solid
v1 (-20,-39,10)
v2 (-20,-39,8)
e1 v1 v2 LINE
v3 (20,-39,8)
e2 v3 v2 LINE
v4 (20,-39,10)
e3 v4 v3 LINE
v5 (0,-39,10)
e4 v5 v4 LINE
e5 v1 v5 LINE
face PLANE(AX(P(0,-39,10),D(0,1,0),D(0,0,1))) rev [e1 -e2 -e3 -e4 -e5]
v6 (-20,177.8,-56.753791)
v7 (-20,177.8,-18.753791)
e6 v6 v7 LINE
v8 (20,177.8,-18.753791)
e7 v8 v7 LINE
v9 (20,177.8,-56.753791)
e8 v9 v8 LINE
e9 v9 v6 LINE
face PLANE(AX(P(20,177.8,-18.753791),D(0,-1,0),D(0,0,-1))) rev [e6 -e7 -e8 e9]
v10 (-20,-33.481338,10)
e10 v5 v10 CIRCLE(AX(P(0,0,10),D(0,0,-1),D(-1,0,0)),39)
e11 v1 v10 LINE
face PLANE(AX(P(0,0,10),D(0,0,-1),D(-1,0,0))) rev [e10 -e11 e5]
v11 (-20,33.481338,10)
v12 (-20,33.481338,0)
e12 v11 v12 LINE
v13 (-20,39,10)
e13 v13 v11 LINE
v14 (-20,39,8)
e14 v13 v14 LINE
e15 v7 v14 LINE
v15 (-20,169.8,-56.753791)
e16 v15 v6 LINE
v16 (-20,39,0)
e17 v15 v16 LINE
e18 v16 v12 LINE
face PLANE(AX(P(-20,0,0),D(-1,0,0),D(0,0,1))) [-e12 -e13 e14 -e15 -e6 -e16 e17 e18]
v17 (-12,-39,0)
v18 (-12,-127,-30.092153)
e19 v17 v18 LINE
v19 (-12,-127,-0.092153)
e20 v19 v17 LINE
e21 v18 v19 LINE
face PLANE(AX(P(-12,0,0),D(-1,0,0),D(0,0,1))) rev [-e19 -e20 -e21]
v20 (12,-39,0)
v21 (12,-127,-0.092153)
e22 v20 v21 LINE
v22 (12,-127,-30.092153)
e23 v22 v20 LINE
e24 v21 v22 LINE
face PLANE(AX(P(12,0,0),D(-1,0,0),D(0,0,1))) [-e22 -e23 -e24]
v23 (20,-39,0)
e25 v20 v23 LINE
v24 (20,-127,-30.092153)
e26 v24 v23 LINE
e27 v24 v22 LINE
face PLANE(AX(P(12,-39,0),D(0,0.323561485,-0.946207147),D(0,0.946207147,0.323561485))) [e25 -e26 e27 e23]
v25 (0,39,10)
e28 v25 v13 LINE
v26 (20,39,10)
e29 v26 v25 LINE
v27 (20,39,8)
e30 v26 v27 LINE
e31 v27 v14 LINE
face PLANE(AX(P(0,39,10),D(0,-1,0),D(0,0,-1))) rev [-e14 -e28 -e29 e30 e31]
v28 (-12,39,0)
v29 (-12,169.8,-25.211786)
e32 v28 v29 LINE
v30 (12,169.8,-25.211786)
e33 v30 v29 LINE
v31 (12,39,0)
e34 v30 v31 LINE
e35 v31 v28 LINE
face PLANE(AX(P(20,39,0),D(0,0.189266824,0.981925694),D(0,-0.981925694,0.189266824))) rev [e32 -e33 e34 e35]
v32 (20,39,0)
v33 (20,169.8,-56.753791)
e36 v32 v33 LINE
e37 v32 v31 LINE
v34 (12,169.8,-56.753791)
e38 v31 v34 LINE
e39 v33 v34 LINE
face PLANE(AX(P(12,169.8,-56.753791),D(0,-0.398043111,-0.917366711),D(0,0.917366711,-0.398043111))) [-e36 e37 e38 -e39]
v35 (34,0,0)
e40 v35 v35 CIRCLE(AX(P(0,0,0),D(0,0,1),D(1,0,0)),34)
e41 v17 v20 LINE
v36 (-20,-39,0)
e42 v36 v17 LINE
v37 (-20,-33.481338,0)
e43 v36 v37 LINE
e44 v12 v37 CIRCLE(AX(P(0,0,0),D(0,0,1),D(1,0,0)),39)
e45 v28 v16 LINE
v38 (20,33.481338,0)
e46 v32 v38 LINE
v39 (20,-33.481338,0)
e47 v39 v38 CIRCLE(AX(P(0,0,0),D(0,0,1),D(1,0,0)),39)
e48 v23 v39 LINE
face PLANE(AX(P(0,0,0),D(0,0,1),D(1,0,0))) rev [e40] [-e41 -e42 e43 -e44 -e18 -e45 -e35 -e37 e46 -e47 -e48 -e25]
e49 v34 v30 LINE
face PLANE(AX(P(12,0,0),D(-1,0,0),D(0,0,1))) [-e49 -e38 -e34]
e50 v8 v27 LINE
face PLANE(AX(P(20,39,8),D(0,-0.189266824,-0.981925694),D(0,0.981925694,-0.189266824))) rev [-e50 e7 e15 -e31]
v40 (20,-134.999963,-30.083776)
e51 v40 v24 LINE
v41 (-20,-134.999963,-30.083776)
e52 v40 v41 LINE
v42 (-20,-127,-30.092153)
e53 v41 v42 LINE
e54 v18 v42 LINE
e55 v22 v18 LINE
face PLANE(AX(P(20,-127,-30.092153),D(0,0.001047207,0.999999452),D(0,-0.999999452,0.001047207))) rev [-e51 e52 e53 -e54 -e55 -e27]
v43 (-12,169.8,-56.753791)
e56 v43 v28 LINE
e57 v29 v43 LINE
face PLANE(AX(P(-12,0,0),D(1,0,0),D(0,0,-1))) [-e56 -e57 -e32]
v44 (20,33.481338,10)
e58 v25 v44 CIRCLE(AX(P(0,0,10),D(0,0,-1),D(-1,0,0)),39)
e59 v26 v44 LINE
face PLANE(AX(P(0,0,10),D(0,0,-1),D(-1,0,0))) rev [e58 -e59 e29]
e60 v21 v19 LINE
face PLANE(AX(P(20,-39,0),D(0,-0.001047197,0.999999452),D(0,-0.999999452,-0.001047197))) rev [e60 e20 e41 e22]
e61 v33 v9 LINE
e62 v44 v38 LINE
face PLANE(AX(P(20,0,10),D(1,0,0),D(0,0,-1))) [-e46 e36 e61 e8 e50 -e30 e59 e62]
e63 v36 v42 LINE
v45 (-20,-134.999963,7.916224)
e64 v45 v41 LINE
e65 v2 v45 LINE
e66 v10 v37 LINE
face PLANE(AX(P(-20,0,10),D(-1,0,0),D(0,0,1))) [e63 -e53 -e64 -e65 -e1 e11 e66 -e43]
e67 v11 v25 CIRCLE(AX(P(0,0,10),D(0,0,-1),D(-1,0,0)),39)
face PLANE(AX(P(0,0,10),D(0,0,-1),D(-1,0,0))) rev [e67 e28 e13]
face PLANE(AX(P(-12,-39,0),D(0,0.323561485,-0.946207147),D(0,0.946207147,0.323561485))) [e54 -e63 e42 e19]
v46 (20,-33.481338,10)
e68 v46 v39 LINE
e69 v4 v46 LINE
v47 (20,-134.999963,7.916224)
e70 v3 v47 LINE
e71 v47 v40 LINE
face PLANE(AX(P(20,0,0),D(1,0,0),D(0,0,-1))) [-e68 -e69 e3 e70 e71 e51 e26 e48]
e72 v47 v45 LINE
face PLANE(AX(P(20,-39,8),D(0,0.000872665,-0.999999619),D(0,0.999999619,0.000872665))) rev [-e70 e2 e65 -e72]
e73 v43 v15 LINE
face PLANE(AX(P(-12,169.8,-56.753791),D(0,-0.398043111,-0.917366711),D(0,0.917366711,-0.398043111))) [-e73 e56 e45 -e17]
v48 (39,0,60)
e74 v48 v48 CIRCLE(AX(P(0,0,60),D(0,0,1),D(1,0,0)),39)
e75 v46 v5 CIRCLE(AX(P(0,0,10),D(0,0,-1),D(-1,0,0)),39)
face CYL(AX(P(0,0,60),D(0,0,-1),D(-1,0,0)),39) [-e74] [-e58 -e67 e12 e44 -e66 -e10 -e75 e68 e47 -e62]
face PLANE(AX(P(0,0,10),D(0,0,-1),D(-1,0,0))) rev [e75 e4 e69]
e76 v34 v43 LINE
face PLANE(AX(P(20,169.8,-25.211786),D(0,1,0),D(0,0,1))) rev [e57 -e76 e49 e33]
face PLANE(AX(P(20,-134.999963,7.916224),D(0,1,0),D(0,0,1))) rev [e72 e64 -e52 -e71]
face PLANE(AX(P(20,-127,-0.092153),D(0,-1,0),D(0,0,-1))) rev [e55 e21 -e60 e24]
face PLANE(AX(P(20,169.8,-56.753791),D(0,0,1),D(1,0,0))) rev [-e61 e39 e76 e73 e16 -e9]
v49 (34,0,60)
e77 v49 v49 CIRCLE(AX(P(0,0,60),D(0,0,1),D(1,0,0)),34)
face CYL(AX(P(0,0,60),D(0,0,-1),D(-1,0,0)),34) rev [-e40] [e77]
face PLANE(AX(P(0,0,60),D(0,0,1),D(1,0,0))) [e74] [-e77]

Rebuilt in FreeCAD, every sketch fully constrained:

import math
import FreeCAD as App
import Part
import Sketcher
Q = App.Units.Quantity

doc = App.newDocument("Part")
body = doc.addObject("PartDesign::Body", "Body")

# Sketch on XY plane
sketch1 = body.newObject("Sketcher::SketchObject", "Sketch")
sketch1.AttachmentSupport = (doc.getObject("XY_Plane"), [""])
sketch1.MapMode = "FlatFace"
sketch1.addGeometry([
    Part.Circle(App.Vector(0, 0, 0), App.Vector(0, 0, 1), 39),
    Part.Circle(App.Vector(0, 0, 0), App.Vector(0, 0, 1), 34),
], False)
sketch1.addConstraint([
    Sketcher.Constraint("Coincident", 0, 3, -1, 1),
    Sketcher.Constraint("Coincident", 1, 3, -1, 1),
    Sketcher.Constraint("Diameter", 0, 78.0),
    Sketcher.Constraint("Diameter", 1, 68.0),
])
pad1 = body.newObject("PartDesign::Pad", "Pad")
pad1.Profile = sketch1
pad1.Length = 60
body2 = doc.addObject("PartDesign::Body", "Body001")

# Sketch on YZ plane
sketch2 = body2.newObject("Sketcher::SketchObject", "Sketch001")
sketch2.AttachmentSupport = (doc.getObject("YZ_Plane001"), [""])
sketch2.MapMode = "FlatFace"
sketch2.addGeometry([
    Part.LineSegment(App.Vector(178, -19, 0), App.Vector(39, 8, 0)),  # 0
    Part.LineSegment(App.Vector(39, 8, 0), App.Vector(39, 0, 0)),  # 1
    Part.LineSegment(App.Vector(39, 0, 0), App.Vector(170, -25, 0)),  # 2
    Part.LineSegment(App.Vector(170, -25, 0), App.Vector(170, -57, 0)),  # 3
    Part.LineSegment(App.Vector(170, -57, 0), App.Vector(178, -57, 0)),  # 4
    Part.LineSegment(App.Vector(178, -57, 0), App.Vector(178, -19, 0)),  # 5
], False)
sketch2.addConstraint([
    Sketcher.Constraint("Coincident", 0, 2, 1, 1),
    Sketcher.Constraint("Coincident", 1, 2, 2, 1),
    Sketcher.Constraint("Coincident", 2, 2, 3, 1),
    Sketcher.Constraint("Coincident", 3, 2, 4, 1),
    Sketcher.Constraint("Coincident", 4, 2, 5, 1),
    Sketcher.Constraint("Coincident", 5, 2, 0, 1),
    Sketcher.Constraint("Vertical", 1),
    Sketcher.Constraint("Vertical", 3),
    Sketcher.Constraint("Horizontal", 4),
    Sketcher.Constraint("Vertical", 5),
    Sketcher.Constraint("PointOnObject", 1, 2, -1),
    Sketcher.Constraint("Parallel", 0, 2),
    Sketcher.Constraint("Equal", 4, 1),
    Sketcher.Constraint("DistanceX", 4, 1, 4, 2, 8.0),
    Sketcher.Constraint("DistanceY", 5, 1, 5, 2, 38.0),
    Sketcher.Constraint("DistanceX", -1, 1, 0, 2, 39.0),
    Sketcher.Constraint("DistanceX", -1, 1, 2, 2, 169.8),
    Sketcher.Constraint("Angle", 0, Q("169.09 deg")),
])
pad2 = body2.newObject("PartDesign::Pad", "Pad001")
pad2.Profile = sketch2
pad2.Length = 40
pad2.Midplane = True
body.AllowCompound = True
doc.recompute()

boolean = body.newObject("PartDesign::Boolean", "Boolean")
boolean.Type = "Fuse"
boolean.addObjects([body2])

# Sketch on XY plane
sketch3 = body.newObject("Sketcher::SketchObject", "Sketch002")
sketch3.AttachmentSupport = (doc.getObject("XY_Plane"), [""])
sketch3.MapMode = "FlatFace"
sketch3.addGeometry([
    Part.LineSegment(App.Vector(0, 39, 0), App.Vector(20, 39, 0)),  # 0
    Part.LineSegment(App.Vector(20, 39, 0), App.Vector(20, 33, 0)),  # 1
    Part.ArcOfCircle(Part.Circle(App.Vector(0, 0, 0), App.Vector(0, 0, 1), 39), math.radians(59), math.radians(90)),  # 2
    Part.LineSegment(App.Vector(-20, 39, 0), App.Vector(0, 39, 0)),  # 3
    Part.ArcOfCircle(Part.Circle(App.Vector(0, 0, 0), App.Vector(0, 0, 1), 39), math.radians(90), math.radians(121)),  # 4
    Part.LineSegment(App.Vector(-20, 33, 0), App.Vector(-20, 39, 0)),  # 5
], False)
sketch3.addConstraint([
    Sketcher.Constraint("Coincident", 0, 2, 1, 1),
    Sketcher.Constraint("Coincident", 1, 2, 2, 1),
    Sketcher.Constraint("Tangent", 2, 2, 0, 1),
    Sketcher.Constraint("Tangent", 3, 2, 4, 1),
    Sketcher.Constraint("Coincident", 4, 2, 5, 1),
    Sketcher.Constraint("Coincident", 5, 2, 3, 1),
    Sketcher.Constraint("Horizontal", 0),
    Sketcher.Constraint("Vertical", 1),
    Sketcher.Constraint("Horizontal", 3),
    Sketcher.Constraint("Vertical", 5),
    Sketcher.Constraint("Coincident", 2, 3, -1, 1),
    Sketcher.Constraint("Coincident", 4, 3, -1, 1),
    Sketcher.Constraint("Equal", 2, 4),
    Sketcher.Constraint("Horizontal", 1, 2, 4, 2),
    Sketcher.Constraint("Radius", 2, 39.0),
    Sketcher.Constraint("DistanceX", 0, 1, 0, 2, 20.0),
])
pad3 = body.newObject("PartDesign::Pad", "Pad002")
pad3.Profile = sketch3
pad3.Length = 10
body3 = doc.addObject("PartDesign::Body", "Body002")

# Sketch on YZ plane
sketch4 = body3.newObject("Sketcher::SketchObject", "Sketch003")
sketch4.AttachmentSupport = (doc.getObject("YZ_Plane002"), [""])
sketch4.MapMode = "FlatFace"
sketch4.addGeometry([
    Part.LineSegment(App.Vector(-39, 8, 0), App.Vector(-135, 8, 0)),  # 0
    Part.LineSegment(App.Vector(-135, 8, 0), App.Vector(-135, -30, 0)),  # 1
    Part.LineSegment(App.Vector(-135, -30, 0), App.Vector(-127, -30, 0)),  # 2
    Part.LineSegment(App.Vector(-127, -30, 0), App.Vector(-127, 0, 0)),  # 3
    Part.LineSegment(App.Vector(-127, 0, 0), App.Vector(-39, 0, 0)),  # 4
    Part.LineSegment(App.Vector(-39, 0, 0), App.Vector(-39, 8, 0)),  # 5
], False)
sketch4.addConstraint([
    Sketcher.Constraint("Coincident", 0, 2, 1, 1),
    Sketcher.Constraint("Coincident", 1, 2, 2, 1),
    Sketcher.Constraint("Coincident", 2, 2, 3, 1),
    Sketcher.Constraint("Coincident", 3, 2, 4, 1),
    Sketcher.Constraint("Coincident", 4, 2, 5, 1),
    Sketcher.Constraint("Coincident", 5, 2, 0, 1),
    Sketcher.Constraint("Vertical", 1),
    Sketcher.Constraint("Vertical", 3),
    Sketcher.Constraint("Vertical", 5),
    Sketcher.Constraint("PointOnObject", 4, 2, -1),
    Sketcher.Constraint("DistanceY", 1, 2, 1, 1, 38.0),
    Sketcher.Constraint("DistanceY", 3, 1, 3, 2, 30.0),
    Sketcher.Constraint("DistanceY", 5, 1, 5, 2, 8.0),
    Sketcher.Constraint("Distance", 0, 96.0),
    Sketcher.Constraint("DistanceX", 2, 2, -1, 1, 127.0),
    Sketcher.Constraint("DistanceX", 4, 2, -1, 1, 39.0),
    Sketcher.Constraint("Angle", 0, Q("-179.95 deg")),
    Sketcher.Constraint("Angle", 2, Q("-0.060001 deg")),
])
pad4 = body3.newObject("PartDesign::Pad", "Pad003")
pad4.Profile = sketch4
pad4.Length = 40
pad4.Midplane = True
body.AllowCompound = True
doc.recompute()

boolean2 = body.newObject("PartDesign::Boolean", "Boolean001")
boolean2.Type = "Fuse"
boolean2.addObjects([body3])

# Sketch on XY plane
sketch5 = body.newObject("Sketcher::SketchObject", "Sketch004")
sketch5.AttachmentSupport = (doc.getObject("XY_Plane"), [""])
sketch5.MapMode = "FlatFace"
sketch5.addGeometry([
    Part.LineSegment(App.Vector(20, -33, 0), App.Vector(20, -39, 0)),  # 0
    Part.LineSegment(App.Vector(20, -39, 0), App.Vector(0, -39, 0)),  # 1
    Part.ArcOfCircle(Part.Circle(App.Vector(0, 0, 0), App.Vector(0, 0, 1), 39), math.radians(-90), math.radians(-59)),  # 2
    Part.ArcOfCircle(Part.Circle(App.Vector(0, 0, 0), App.Vector(0, 0, 1), 39), math.radians(-121), math.radians(-90)),  # 3
    Part.LineSegment(App.Vector(0, -39, 0), App.Vector(-20, -39, 0)),  # 4
    Part.LineSegment(App.Vector(-20, -39, 0), App.Vector(-20, -33, 0)),  # 5
], False)
sketch5.addConstraint([
    Sketcher.Constraint("Coincident", 0, 2, 1, 1),
    Sketcher.Constraint("Tangent", 1, 2, 2, 1),
    Sketcher.Constraint("Coincident", 2, 2, 0, 1),
    Sketcher.Constraint("Tangent", 3, 2, 4, 1),
    Sketcher.Constraint("Coincident", 4, 2, 5, 1),
    Sketcher.Constraint("Coincident", 5, 2, 3, 1),
    Sketcher.Constraint("Vertical", 0),
    Sketcher.Constraint("Horizontal", 1),
    Sketcher.Constraint("Horizontal", 4),
    Sketcher.Constraint("Vertical", 5),
    Sketcher.Constraint("Coincident", 2, 3, -1, 1),
    Sketcher.Constraint("Coincident", 3, 3, -1, 1),
    Sketcher.Constraint("Equal", 2, 3),
    Sketcher.Constraint("Horizontal", 2, 2, 5, 2),
    Sketcher.Constraint("Radius", 2, 39.0),
    Sketcher.Constraint("DistanceX", 1, 2, 1, 1, 20.0),
])
pad5 = body.newObject("PartDesign::Pad", "Pad004")
pad5.Profile = sketch5
pad5.Length = 10

# Sketch on YZ plane
sketch6 = body.newObject("Sketcher::SketchObject", "Sketch005")
sketch6.AttachmentSupport = (doc.getObject("YZ_Plane"), [""])
sketch6.MapMode = "FlatFace"
sketch6.AttachmentOffset = App.Placement(App.Vector(0, 0, 20), App.Rotation())
sketch6.addGeometry([
    Part.LineSegment(App.Vector(39, 0, 0), App.Vector(170, -57, 0)),
    Part.LineSegment(App.Vector(170, -57, 0), App.Vector(170, -25, 0)),
    Part.LineSegment(App.Vector(170, -25, 0), App.Vector(39, 0, 0)),
], False)
sketch6.addConstraint([
    Sketcher.Constraint("Coincident", 0, 2, 1, 1),
    Sketcher.Constraint("Coincident", 1, 2, 2, 1),
    Sketcher.Constraint("Coincident", 2, 2, 0, 1),
    Sketcher.Constraint("Vertical", 1),
    Sketcher.Constraint("PointOnObject", 2, 2, -1),
    Sketcher.Constraint("DistanceX", -1, 1, 2, 2, 39.0),
    Sketcher.Constraint("DistanceX", -1, 1, 0, 2, 169.8),
    Sketcher.Constraint("Angle", 2, Q("169.09 deg")),
    Sketcher.Constraint("Distance", 0, 142.582021),
])
pad6 = body.newObject("PartDesign::Pad", "Pad005")
pad6.Profile = sketch6
pad6.Length = 8
pad6.Reversed = True

# Sketch on YZ plane
sketch7 = body.newObject("Sketcher::SketchObject", "Sketch006")
sketch7.AttachmentSupport = (doc.getObject("YZ_Plane"), [""])
sketch7.MapMode = "FlatFace"
sketch7.AttachmentOffset = App.Placement(App.Vector(0, 0, -20), App.Rotation())
sketch7.addGeometry([
    Part.LineSegment(App.Vector(39, 0, 0), App.Vector(170, -25, 0)),
    Part.LineSegment(App.Vector(170, -25, 0), App.Vector(170, -57, 0)),
    Part.LineSegment(App.Vector(170, -57, 0), App.Vector(39, 0, 0)),
], False)
sketch7.addConstraint([
    Sketcher.Constraint("Coincident", 0, 2, 1, 1),
    Sketcher.Constraint("Coincident", 1, 2, 2, 1),
    Sketcher.Constraint("Coincident", 2, 2, 0, 1),
    Sketcher.Constraint("Vertical", 1),
    Sketcher.Constraint("PointOnObject", 2, 2, -1),
    Sketcher.Constraint("DistanceX", -1, 1, 2, 2, 39.0),
    Sketcher.Constraint("DistanceX", -1, 1, 0, 2, 169.8),
    Sketcher.Constraint("Angle", 0, Q("-10.91 deg")),
    Sketcher.Constraint("Distance", 2, 142.582021),
])
pad7 = body.newObject("PartDesign::Pad", "Pad006")
pad7.Profile = sketch7
pad7.Length = 8

# Sketch on YZ plane
sketch8 = body.newObject("Sketcher::SketchObject", "Sketch007")
sketch8.AttachmentSupport = (doc.getObject("YZ_Plane"), [""])
sketch8.MapMode = "FlatFace"
sketch8.AttachmentOffset = App.Placement(App.Vector(0, 0, 20), App.Rotation())
sketch8.addGeometry([
    Part.LineSegment(App.Vector(-127, -30, 0), App.Vector(-39, 0, 0)),
    Part.LineSegment(App.Vector(-39, 0, 0), App.Vector(-127, 0, 0)),
    Part.LineSegment(App.Vector(-127, 0, 0), App.Vector(-127, -30, 0)),
], False)
sketch8.addConstraint([
    Sketcher.Constraint("Coincident", 0, 2, 1, 1),
    Sketcher.Constraint("Coincident", 1, 2, 2, 1),
    Sketcher.Constraint("Coincident", 2, 2, 0, 1),
    Sketcher.Constraint("Vertical", 2),
    Sketcher.Constraint("PointOnObject", 0, 2, -1),
    Sketcher.Constraint("DistanceY", 2, 2, 2, 1, 30.0),
    Sketcher.Constraint("DistanceX", 0, 2, -1, 1, 39.0),
    Sketcher.Constraint("DistanceX", 1, 2, -1, 1, 127.0),
    Sketcher.Constraint("Angle", 1, Q("-179.94 deg")),
])
pad8 = body.newObject("PartDesign::Pad", "Pad007")
pad8.Profile = sketch8
pad8.Length = 8
pad8.Reversed = True

# Sketch on YZ plane
sketch9 = body.newObject("Sketcher::SketchObject", "Sketch008")
sketch9.AttachmentSupport = (doc.getObject("YZ_Plane"), [""])
sketch9.MapMode = "FlatFace"
sketch9.AttachmentOffset = App.Placement(App.Vector(0, 0, -20), App.Rotation())
sketch9.addGeometry([
    Part.LineSegment(App.Vector(-127, -30, 0), App.Vector(-127, 0, 0)),
    Part.LineSegment(App.Vector(-127, 0, 0), App.Vector(-39, 0, 0)),
    Part.LineSegment(App.Vector(-39, 0, 0), App.Vector(-127, -30, 0)),
], False)
sketch9.addConstraint([
    Sketcher.Constraint("Coincident", 0, 2, 1, 1),
    Sketcher.Constraint("Coincident", 1, 2, 2, 1),
    Sketcher.Constraint("Coincident", 2, 2, 0, 1),
    Sketcher.Constraint("Vertical", 0),
    Sketcher.Constraint("PointOnObject", 1, 2, -1),
    Sketcher.Constraint("DistanceY", 0, 1, 0, 2, 30.0),
    Sketcher.Constraint("DistanceX", 0, 2, -1, 1, 127.0),
    Sketcher.Constraint("DistanceX", 1, 2, -1, 1, 39.0),
    Sketcher.Constraint("Angle", 1, Q("0.06 deg")),
])
pad9 = body.newObject("PartDesign::Pad", "Pad008")
pad9.Profile = sketch9
pad9.Length = 8

doc.recompute()
